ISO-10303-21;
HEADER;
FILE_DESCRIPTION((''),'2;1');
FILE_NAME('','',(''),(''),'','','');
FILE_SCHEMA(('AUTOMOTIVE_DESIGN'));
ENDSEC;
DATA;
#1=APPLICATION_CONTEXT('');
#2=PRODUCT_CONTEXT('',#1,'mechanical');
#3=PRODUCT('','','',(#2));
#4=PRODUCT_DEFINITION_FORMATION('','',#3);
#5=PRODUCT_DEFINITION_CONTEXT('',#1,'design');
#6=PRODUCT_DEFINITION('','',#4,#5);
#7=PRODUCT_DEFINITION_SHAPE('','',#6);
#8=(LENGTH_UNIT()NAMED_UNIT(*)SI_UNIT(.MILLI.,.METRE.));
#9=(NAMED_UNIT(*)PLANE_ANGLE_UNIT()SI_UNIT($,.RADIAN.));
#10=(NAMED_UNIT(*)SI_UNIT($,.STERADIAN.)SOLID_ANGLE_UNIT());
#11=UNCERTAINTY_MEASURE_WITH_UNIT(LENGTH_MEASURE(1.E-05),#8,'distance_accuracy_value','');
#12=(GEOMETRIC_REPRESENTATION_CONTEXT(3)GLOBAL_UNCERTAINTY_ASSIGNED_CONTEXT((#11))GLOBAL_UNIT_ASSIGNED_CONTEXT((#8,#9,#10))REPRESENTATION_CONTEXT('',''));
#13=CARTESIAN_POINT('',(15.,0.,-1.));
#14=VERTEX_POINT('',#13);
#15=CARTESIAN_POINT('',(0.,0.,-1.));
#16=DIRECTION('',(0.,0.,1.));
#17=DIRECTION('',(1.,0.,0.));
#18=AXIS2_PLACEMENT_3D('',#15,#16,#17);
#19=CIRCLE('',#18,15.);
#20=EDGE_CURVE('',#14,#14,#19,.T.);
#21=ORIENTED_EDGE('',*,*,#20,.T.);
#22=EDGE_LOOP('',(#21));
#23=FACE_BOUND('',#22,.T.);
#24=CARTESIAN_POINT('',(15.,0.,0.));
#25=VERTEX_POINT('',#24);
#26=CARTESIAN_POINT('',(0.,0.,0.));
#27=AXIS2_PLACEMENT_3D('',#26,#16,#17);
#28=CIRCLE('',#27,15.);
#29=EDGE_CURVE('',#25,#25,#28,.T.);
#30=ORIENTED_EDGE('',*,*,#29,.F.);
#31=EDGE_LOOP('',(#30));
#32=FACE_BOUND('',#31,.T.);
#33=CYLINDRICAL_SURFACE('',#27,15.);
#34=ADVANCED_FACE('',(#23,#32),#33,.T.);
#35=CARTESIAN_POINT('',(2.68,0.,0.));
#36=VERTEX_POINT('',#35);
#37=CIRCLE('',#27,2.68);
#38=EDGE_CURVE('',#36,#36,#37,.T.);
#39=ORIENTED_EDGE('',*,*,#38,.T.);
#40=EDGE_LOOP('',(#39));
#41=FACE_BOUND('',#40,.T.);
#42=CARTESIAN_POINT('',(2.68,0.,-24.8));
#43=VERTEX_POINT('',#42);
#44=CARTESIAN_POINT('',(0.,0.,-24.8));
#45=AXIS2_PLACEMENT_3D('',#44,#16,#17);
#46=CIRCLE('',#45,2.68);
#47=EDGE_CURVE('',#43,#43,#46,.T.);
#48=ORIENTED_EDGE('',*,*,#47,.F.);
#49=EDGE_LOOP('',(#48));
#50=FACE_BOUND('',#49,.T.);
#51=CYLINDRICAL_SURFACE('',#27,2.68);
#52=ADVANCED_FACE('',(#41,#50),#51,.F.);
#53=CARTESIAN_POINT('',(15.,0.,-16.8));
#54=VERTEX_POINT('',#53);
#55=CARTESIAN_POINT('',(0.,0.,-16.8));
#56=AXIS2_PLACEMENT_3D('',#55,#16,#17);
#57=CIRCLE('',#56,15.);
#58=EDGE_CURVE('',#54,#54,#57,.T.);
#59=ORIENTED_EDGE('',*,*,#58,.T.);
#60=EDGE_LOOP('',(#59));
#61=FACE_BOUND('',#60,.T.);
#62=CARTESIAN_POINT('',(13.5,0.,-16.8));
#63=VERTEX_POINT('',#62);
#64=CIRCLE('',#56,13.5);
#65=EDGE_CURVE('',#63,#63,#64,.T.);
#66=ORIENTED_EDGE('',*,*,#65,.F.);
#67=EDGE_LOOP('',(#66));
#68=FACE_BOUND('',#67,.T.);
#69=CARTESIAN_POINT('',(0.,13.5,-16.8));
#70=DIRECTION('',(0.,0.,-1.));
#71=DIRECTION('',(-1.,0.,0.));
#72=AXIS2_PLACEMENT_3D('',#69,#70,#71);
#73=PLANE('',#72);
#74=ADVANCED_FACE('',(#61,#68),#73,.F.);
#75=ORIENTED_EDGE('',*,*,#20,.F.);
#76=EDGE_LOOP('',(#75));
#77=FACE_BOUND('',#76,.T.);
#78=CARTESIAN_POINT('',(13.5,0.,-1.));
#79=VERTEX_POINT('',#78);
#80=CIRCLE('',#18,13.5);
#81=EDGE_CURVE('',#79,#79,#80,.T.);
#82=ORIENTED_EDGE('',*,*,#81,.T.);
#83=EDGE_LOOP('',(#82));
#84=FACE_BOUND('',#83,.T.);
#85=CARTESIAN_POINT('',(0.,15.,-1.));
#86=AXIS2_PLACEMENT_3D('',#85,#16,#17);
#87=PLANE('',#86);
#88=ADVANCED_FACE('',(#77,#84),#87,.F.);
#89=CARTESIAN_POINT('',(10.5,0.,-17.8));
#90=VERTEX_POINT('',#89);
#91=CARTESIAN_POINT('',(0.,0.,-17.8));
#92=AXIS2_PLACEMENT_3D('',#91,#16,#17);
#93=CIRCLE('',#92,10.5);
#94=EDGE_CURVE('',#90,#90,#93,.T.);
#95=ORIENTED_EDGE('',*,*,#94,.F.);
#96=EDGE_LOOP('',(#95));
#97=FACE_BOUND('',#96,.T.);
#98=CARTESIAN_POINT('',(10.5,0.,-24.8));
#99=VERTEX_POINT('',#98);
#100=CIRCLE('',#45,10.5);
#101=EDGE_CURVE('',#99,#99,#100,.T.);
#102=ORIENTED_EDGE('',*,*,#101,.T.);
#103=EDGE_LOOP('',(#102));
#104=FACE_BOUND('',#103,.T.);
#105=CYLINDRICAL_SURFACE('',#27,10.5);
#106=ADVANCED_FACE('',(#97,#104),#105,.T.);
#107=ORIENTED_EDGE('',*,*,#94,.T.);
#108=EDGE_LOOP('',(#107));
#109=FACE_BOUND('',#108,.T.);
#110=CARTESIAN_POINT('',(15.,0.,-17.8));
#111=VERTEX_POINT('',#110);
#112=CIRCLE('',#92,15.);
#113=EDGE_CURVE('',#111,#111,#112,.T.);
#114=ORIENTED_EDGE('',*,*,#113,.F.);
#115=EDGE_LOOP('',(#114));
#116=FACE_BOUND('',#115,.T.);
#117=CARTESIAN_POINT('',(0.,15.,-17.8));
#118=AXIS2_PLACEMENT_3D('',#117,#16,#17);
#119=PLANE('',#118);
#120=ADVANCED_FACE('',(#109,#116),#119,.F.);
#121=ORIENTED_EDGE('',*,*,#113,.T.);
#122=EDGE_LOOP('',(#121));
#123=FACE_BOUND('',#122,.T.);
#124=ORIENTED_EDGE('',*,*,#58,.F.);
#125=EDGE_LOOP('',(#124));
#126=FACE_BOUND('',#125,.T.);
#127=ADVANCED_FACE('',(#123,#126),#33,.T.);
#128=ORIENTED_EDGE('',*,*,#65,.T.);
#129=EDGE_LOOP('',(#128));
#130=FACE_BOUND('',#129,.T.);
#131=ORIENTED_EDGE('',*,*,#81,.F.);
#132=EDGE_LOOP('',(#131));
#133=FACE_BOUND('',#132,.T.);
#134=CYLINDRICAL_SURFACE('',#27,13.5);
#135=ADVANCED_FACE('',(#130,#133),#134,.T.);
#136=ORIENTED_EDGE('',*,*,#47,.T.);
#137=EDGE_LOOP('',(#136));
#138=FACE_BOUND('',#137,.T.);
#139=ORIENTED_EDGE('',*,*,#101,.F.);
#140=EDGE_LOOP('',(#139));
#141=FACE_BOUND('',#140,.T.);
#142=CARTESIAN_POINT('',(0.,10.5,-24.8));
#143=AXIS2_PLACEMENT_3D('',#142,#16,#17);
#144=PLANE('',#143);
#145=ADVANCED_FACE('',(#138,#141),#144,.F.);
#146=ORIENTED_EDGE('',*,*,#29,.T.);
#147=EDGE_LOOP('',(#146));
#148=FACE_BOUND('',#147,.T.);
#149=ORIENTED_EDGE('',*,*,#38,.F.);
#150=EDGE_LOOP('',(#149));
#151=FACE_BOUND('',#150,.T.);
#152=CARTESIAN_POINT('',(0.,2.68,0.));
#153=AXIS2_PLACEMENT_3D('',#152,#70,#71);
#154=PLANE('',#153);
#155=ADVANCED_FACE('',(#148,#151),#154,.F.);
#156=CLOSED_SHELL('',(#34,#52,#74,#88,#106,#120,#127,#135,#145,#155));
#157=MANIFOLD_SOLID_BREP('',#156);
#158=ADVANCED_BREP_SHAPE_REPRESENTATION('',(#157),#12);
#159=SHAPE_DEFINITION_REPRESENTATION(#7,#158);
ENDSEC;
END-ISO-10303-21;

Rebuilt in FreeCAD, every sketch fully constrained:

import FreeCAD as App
import Part
import Sketcher
from FreeCAD import Vector
Q = App.Units.Quantity


def add_polygon(sketch, points):
    """Adds a closed chain of lines whose ends are joined by coincident constraints."""
    first, n = sketch.GeometryCount, len(points)
    for a, b in zip(points, points[1:] + points[:1]):
        sketch.addGeometry(Part.LineSegment(App.Vector(*a, 0), App.Vector(*b, 0)), False)
    for i in range(n):
        sketch.addConstraint(Sketcher.Constraint("Coincident", first + i, 2, first + (i + 1) % n, 1))

doc = App.newDocument("Part")
params = doc.addObject("Spreadsheet::Sheet", "Params")
for row, (alias, value) in enumerate([
    ("sketch1_height", "7 mm"),
    ("sketch1_height2", "1 mm"),
    ("sketch1_width", "4.5 mm"),
    ("sketch1_width2", "1.5 mm"),
    ("sketch1_height3", "24.8 mm"),
    ("revolution_angle", "360 deg"),
], start=1):
    params.set(f"A{row}", alias)
    params.set(f"B{row}", "=" + value)
    params.setAlias(f"B{row}", alias)

body = doc.addObject("PartDesign::Body", "Body")

# Sketch on YZ plane
sketch1 = doc.addObject("Sketcher::SketchObject", "Sketch")
body.addObject(sketch1)
sketch1.AttachmentSupport = (doc.YZ_Plane, [""])
sketch1.MapMode = "FlatFace"
add_polygon(sketch1, [(15, 0), (2.7, 0), (2.7, -24.8), (10.5, -24.8), (10.5, -17.8), (15, -17.8), (15, -16.8), (13.5, -16.8), (13.5, -1), (15, -1)])  # lines 0-9
sketch1.addConstraint([
    Sketcher.Constraint("Horizontal", 0),
    Sketcher.Constraint("Vertical", 1),
    Sketcher.Constraint("Horizontal", 2),
    Sketcher.Constraint("Vertical", 3),
    Sketcher.Constraint("Horizontal", 4),
    Sketcher.Constraint("Vertical", 5),
    Sketcher.Constraint("Horizontal", 6),
    Sketcher.Constraint("Vertical", 7),
    Sketcher.Constraint("Horizontal", 8),
    Sketcher.Constraint("Vertical", 9),
    Sketcher.Constraint("PointOnObject", 0, 2, -1),
    Sketcher.Constraint("Vertical", 5, 2, 8, 2),
    Sketcher.Constraint("Equal", 5, 9),
    Sketcher.Constraint("DistanceY", 3, 1, 3, 2, Q("7 mm")),
    Sketcher.Constraint("DistanceY", 5, 1, 5, 2, Q("1 mm")),
    Sketcher.Constraint("DistanceX", 4, 1, 4, 2, Q("4.5 mm")),
    Sketcher.Constraint("DistanceX", 6, 2, 6, 1, Q("1.5 mm")),
    Sketcher.Constraint("DistanceY", 1, 2, 1, 1, Q("24.8 mm")),
    Sketcher.Constraint("DistanceX", -1, 1, 4, 2, Q("15 mm")),
    Sketcher.Constraint("DistanceX", 0, 2, 0, 1, Q("12.32 mm")),
])
sketch1.setExpression("Constraints[23]", "Params.sketch1_height")
sketch1.setExpression("Constraints[24]", "Params.sketch1_height2")
sketch1.setExpression("Constraints[25]", "Params.sketch1_width")
sketch1.setExpression("Constraints[26]", "Params.sketch1_width2")
sketch1.setExpression("Constraints[27]", "Params.sketch1_height3")
revolution = doc.addObject("PartDesign::Revolution", "Revolution")
body.addObject(revolution)
revolution.Profile = sketch1
revolution.ReferenceAxis = (sketch1, ["V_Axis"])
revolution.setExpression("Angle", "Params.revolution_angle")

doc.recompute()
